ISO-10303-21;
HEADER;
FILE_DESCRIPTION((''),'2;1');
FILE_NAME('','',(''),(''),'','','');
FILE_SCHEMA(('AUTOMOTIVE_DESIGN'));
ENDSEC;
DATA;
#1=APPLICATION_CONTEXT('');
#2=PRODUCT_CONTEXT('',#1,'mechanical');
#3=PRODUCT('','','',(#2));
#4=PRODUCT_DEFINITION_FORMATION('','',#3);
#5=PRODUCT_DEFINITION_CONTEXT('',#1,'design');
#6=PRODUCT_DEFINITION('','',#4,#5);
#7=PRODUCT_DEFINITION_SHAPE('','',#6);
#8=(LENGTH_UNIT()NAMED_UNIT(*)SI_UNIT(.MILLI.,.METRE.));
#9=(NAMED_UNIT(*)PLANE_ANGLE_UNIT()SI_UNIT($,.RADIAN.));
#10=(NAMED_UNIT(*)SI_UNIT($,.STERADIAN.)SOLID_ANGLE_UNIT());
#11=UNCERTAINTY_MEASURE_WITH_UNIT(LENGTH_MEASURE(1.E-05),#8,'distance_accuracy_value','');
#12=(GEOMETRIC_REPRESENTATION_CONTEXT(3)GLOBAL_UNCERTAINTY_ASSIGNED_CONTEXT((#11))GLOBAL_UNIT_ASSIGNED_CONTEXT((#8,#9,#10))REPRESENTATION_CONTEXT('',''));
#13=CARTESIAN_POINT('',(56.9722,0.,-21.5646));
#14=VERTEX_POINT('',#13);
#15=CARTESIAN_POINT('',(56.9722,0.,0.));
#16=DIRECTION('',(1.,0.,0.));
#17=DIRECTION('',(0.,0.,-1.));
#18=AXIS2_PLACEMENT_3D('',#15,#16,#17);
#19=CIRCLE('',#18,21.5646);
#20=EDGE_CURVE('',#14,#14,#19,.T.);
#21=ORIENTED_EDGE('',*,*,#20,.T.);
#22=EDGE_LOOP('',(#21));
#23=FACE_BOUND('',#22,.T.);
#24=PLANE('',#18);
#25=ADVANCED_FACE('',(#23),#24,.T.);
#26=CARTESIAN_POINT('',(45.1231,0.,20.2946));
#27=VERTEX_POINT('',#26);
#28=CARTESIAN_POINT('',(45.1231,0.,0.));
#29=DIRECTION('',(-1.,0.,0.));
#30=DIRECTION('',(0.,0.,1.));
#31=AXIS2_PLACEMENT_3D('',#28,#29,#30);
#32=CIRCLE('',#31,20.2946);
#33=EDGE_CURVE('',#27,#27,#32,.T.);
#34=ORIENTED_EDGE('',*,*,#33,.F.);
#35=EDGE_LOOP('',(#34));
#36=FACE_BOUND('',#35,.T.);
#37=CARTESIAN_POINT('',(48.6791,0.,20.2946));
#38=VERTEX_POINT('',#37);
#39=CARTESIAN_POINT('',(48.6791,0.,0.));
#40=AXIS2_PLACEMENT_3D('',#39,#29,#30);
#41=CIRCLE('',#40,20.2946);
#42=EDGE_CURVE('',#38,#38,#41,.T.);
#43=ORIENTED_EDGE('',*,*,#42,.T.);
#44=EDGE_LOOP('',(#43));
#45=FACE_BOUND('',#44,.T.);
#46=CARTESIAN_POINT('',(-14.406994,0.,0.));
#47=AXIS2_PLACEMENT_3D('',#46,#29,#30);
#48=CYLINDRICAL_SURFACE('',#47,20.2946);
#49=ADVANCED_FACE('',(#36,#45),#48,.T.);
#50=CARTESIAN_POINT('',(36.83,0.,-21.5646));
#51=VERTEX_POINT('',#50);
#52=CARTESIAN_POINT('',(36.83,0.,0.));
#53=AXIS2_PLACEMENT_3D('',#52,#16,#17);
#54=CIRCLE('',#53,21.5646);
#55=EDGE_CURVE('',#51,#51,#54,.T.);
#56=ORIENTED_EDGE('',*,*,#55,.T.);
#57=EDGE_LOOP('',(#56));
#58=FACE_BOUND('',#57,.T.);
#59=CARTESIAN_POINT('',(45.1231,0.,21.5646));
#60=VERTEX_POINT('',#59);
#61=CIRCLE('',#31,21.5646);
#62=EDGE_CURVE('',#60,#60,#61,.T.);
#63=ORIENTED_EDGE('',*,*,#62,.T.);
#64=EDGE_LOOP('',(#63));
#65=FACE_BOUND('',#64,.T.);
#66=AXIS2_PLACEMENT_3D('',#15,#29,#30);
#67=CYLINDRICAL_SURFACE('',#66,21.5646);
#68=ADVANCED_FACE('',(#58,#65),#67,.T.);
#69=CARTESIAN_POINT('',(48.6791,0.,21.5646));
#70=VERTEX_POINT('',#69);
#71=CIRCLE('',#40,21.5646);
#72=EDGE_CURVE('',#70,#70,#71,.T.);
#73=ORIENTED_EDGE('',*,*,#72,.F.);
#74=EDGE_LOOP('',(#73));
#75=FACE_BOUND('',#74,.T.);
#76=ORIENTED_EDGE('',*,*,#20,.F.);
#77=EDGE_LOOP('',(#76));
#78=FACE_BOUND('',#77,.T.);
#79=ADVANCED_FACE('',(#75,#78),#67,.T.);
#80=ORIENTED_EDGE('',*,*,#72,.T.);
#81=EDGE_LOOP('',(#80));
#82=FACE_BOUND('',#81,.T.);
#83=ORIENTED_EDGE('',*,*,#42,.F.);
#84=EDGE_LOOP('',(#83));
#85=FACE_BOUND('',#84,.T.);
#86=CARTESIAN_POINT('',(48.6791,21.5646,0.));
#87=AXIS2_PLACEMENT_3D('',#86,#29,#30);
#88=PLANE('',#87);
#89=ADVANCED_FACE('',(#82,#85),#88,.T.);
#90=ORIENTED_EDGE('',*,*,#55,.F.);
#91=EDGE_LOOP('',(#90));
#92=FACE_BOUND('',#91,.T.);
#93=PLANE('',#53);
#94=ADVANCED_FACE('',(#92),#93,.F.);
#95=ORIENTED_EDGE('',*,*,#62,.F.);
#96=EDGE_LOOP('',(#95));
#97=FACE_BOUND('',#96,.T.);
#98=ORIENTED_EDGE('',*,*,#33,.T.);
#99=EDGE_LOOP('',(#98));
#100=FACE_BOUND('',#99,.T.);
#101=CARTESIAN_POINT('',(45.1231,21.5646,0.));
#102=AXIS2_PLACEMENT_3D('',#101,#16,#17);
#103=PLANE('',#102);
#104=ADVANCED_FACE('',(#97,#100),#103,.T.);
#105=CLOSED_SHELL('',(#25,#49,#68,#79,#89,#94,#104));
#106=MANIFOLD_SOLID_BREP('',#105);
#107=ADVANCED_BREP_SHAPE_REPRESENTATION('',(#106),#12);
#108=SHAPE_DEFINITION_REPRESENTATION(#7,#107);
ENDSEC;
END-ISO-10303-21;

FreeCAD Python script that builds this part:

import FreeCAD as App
import Part
import Sketcher

V = App.Vector
Q = App.Units.Quantity


def add_polygon(sketch, points):
    """Adds a closed chain of lines whose ends are joined by coincident constraints."""
    first, n = sketch.GeometryCount, len(points)
    for a, b in zip(points, points[1:] + points[:1]):
        sketch.addGeometry(Part.LineSegment(App.Vector(*a, 0), App.Vector(*b, 0)), False)
    for i in range(n):
        sketch.addConstraint(Sketcher.Constraint("Coincident", first + i, 2, first + (i + 1) % n, 1))

doc = App.newDocument("Part")
body = doc.addObject("PartDesign::Body", "Body")

# Sketch on YZ plane
sketch1 = body.newObject("Sketcher::SketchObject", "Sketch")
sketch1.AttachmentSupport = (doc.getObject("YZ_Plane"), [""])
sketch1.MapMode = "FlatFace"
sketch1.AttachmentOffset = App.Placement(V(0, 0, 1.45 * 25.4), App.Rotation())
sketch1.addGeometry(Part.Circle(V(0, 0, 0), V(0, 0, 1), 22), False)
sketch1.addConstraint([
    Sketcher.Constraint("Coincident", 0, 3, -1, 1),
    Sketcher.Constraint("Diameter", 0, Q("1.698 in")),
])
pad1 = body.newObject("PartDesign::Pad", "Pad")
pad1.Profile = sketch1
pad1.Length = Q("0.793 in")

# Sketch on XY plane
sketch2 = body.newObject("Sketcher::SketchObject", "Sketch001")
sketch2.AttachmentSupport = (doc.getObject("XY_Plane"), [""])
sketch2.MapMode = "FlatFace"
add_polygon(sketch2, [(45.1, 21.6), (45.1, 20.3), (48.7, 20.3), (48.7, 21.6)])  # lines 0-3
sketch2.addConstraint([
    Sketcher.Constraint("Vertical", 0),
    Sketcher.Constraint("Horizontal", 1),
    Sketcher.Constraint("Vertical", 2),
    Sketcher.Constraint("Horizontal", 3),
    Sketcher.Constraint("DistanceX", 1, 1, 1, 2, Q("0.14 in")),
    Sketcher.Constraint("DistanceY", 0, 2, 0, 1, Q("0.05 in")),
    Sketcher.Constraint("DistanceY", -1, 1, 0, 2, Q("0.799 in")),
    Sketcher.Constraint("DistanceX", -1, 1, 0, 2, Q("1.7765 in")),
])
groove = body.newObject("PartDesign::Groove", "Groove")
groove.Profile = sketch2
groove.ReferenceAxis = (sketch2, ["H_Axis"])
groove.Angle = 360

doc.recompute()
